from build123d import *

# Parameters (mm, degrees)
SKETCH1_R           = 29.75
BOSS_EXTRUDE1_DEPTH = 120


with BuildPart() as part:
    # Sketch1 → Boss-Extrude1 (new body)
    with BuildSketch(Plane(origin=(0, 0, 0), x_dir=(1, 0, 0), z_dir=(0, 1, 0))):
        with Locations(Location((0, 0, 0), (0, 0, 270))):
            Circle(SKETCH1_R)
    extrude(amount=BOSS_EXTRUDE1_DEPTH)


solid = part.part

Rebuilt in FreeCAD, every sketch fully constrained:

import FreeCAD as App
import Part
import Sketcher
Q = App.Units.Quantity

doc = App.newDocument("Part")
body = doc.addObject("PartDesign::Body", "Body")

sketch1 = body.newObject("Sketcher::SketchObject", "Sketch")
sketch1.AttachmentSupport = (doc.getObject("XZ_Plane"), [""])
sketch1.MapMode = "FlatFace"
sketch1.addGeometry(Part.Circle(App.Vector(0, 0, 0), App.Vector(0, 0, 1), 30), False)
sketch1.addConstraint(Sketcher.Constraint("Coincident", 0, 3, -1, 1))
sketch1.addConstraint(Sketcher.Constraint("Diameter", 0, Q("59.5 mm")))
pad1 = body.newObject("PartDesign::Pad", "Pad")
pad1.Profile = sketch1
pad1.Length = 120
pad1.Reversed = True

doc.recompute()
